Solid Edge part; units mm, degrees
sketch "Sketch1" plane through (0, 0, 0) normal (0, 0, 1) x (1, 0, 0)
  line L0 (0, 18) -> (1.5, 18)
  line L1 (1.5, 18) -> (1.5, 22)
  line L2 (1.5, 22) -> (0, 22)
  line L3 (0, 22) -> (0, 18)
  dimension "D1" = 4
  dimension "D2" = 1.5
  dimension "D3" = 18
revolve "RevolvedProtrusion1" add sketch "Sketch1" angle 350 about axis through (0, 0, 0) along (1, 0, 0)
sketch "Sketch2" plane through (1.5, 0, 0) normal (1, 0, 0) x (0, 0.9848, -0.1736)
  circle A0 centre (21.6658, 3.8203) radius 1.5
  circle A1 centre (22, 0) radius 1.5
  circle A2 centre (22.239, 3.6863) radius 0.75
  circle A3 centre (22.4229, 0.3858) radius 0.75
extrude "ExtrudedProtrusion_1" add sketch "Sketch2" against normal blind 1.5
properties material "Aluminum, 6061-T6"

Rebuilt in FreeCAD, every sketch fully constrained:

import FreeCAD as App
import Part
import Sketcher

V = App.Vector
Q = App.Units.Quantity


def add_polygon(sketch, points):
    """Adds a closed chain of lines whose ends are joined by coincident constraints."""
    first, n = sketch.GeometryCount, len(points)
    for a, b in zip(points, points[1:] + points[:1]):
        sketch.addGeometry(Part.LineSegment(App.Vector(*a, 0), App.Vector(*b, 0)), False)
    for i in range(n):
        sketch.addConstraint(Sketcher.Constraint("Coincident", first + i, 2, first + (i + 1) % n, 1))

doc = App.newDocument("Part")
body = doc.addObject("PartDesign::Body", "Body")

# Sketch on XY plane
sketch1 = doc.addObject("Sketcher::SketchObject", "Sketch")
body.addObject(sketch1)
sketch1.AttachmentSupport = (doc.XY_Plane, [""])
sketch1.MapMode = "FlatFace"
add_polygon(sketch1, [(0, 22), (0, 18), (1.5, 18), (1.5, 22)])  # lines 0-3
sketch1.addConstraint([
    Sketcher.Constraint("Vertical", 0),
    Sketcher.Constraint("Horizontal", 1),
    Sketcher.Constraint("Vertical", 2),
    Sketcher.Constraint("Horizontal", 3),
    Sketcher.Constraint("PointOnObject", 0, 2, -2),
    Sketcher.Constraint("DistanceX", 1, 1, 1, 2, Q("1.5 mm")),
    Sketcher.Constraint("DistanceY", 0, 2, 0, 1, Q("4 mm")),
    Sketcher.Constraint("DistanceY", -1, 1, 0, 2, Q("18 mm")),
])
revolution = doc.addObject("PartDesign::Revolution", "Revolution")
body.addObject(revolution)
revolution.Profile = sketch1
revolution.ReferenceAxis = (sketch1, ["H_Axis"])
revolution.Angle = 350

# Sketch on YZ plane
sketch2 = doc.addObject("Sketcher::SketchObject", "Sketch001")
body.addObject(sketch2)
sketch2.AttachmentSupport = (doc.YZ_Plane, [""])
sketch2.MapMode = "FlatFace"
sketch2.AttachmentOffset = App.Placement(V(0, 0, 1.5), App.Rotation())
sketch2.addGeometry([
    Part.Circle(V(22, 0, 0), V(0, 0, 1), 1.5),
    Part.Circle(V(22.5, -0.2, 0), V(0, 0, 1), 0.8),
    Part.Circle(V(21.7, -3.8, 0), V(0, 0, 1), 1.5),
    Part.Circle(V(22.1, -3.5, 0), V(0, 0, 1), 0.8),
], False)
sketch2.addConstraint([
    Sketcher.Constraint("Equal", 0, 2),
    Sketcher.Constraint("Equal", 1, 3),
    Sketcher.Constraint("PointOnObject", 0, 3, -1),
    Sketcher.Constraint("Diameter", 0, Q("3 mm")),
    Sketcher.Constraint("Diameter", 1, Q("1.5 mm")),
    Sketcher.Constraint("DistanceX", -1, 1, 0, 3, Q("22 mm")),
    Sketcher.Constraint("DistanceX", 3, 3, 1, 3, Q("0.392 mm")),
    Sketcher.Constraint("DistanceX", -1, 1, 1, 3, Q("22.5413 mm")),
    Sketcher.Constraint("DistanceY", 1, 3, -1, 1, Q("0.2315 mm")),
    Sketcher.Constraint("DistanceX", -1, 1, 2, 3, Q("21.6658 mm")),
    Sketcher.Constraint("DistanceY", 2, 3, -1, 1, Q("3.8203 mm")),
    Sketcher.Constraint("DistanceY", 3, 3, -1, 1, Q("3.5138 mm")),
])
pad1 = doc.addObject("PartDesign::Pad", "Pad")
body.addObject(pad1)
pad1.Profile = sketch2
pad1.Length = 1.5
pad1.Reversed = True

doc.recompute()
